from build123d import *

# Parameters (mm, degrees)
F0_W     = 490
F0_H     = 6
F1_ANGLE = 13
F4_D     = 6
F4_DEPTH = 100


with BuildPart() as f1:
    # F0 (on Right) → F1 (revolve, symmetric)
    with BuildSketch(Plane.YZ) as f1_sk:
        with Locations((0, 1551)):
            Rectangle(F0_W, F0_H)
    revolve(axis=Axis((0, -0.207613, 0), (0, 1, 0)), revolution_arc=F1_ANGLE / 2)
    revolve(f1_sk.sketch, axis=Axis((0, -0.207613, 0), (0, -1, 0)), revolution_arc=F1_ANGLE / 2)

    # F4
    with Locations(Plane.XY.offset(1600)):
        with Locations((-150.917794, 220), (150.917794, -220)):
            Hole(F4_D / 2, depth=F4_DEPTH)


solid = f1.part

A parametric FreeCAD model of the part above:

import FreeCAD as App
import Part
import Sketcher
from FreeCAD import Vector
Q = App.Units.Quantity


def add_polygon(sketch, points):
    """Adds a closed chain of lines whose ends are joined by coincident constraints."""
    first, n = sketch.GeometryCount, len(points)
    for a, b in zip(points, points[1:] + points[:1]):
        sketch.addGeometry(Part.LineSegment(App.Vector(*a, 0), App.Vector(*b, 0)), False)
    for i in range(n):
        sketch.addConstraint(Sketcher.Constraint("Coincident", first + i, 2, first + (i + 1) % n, 1))

doc = App.newDocument("Part")
body = doc.addObject("PartDesign::Body", "Body")

sketch1 = body.newObject("Sketcher::SketchObject", "Sketch")
sketch1.AttachmentSupport = (doc.getObject("YZ_Plane"), [""])
sketch1.MapMode = "FlatFace"
add_polygon(sketch1, [(-245, 1554), (-245, 1548), (245, 1548), (245, 1554)])
sketch1.addConstraint(Sketcher.Constraint("Vertical", 0))
sketch1.addConstraint(Sketcher.Constraint("Horizontal", 1))
sketch1.addConstraint(Sketcher.Constraint("Vertical", 2))
sketch1.addConstraint(Sketcher.Constraint("Horizontal", 3))
sketch1.addConstraint(Sketcher.Constraint("DistanceX", 1, 1, 1, 2, Q("490 mm")))
sketch1.addConstraint(Sketcher.Constraint("DistanceY", 0, 2, 0, 1, Q("6 mm")))
sketch1.addConstraint(Sketcher.Constraint("DistanceX", 0, 2, -1, 1, Q("245 mm")))
sketch1.addConstraint(Sketcher.Constraint("DistanceY", -1, 1, 0, 2, Q("1548 mm")))
revolution = body.newObject("PartDesign::Revolution", "Revolution")
revolution.Profile = sketch1
revolution.ReferenceAxis = (sketch1, ["H_Axis"])
revolution.Angle = 6.5

sketch2 = body.newObject("Sketcher::SketchObject", "Sketch001")
sketch2.AttachmentSupport = (doc.getObject("YZ_Plane"), [""])
sketch2.MapMode = "FlatFace"
add_polygon(sketch2, [(-245, 1554), (-245, 1548), (245, 1548), (245, 1554)])
sketch2.addConstraint(Sketcher.Constraint("Vertical", 0))
sketch2.addConstraint(Sketcher.Constraint("Horizontal", 1))
sketch2.addConstraint(Sketcher.Constraint("Vertical", 2))
sketch2.addConstraint(Sketcher.Constraint("Horizontal", 3))
sketch2.addConstraint(Sketcher.Constraint("DistanceX", 1, 1, 1, 2, Q("490 mm")))
sketch2.addConstraint(Sketcher.Constraint("DistanceY", 0, 2, 0, 1, Q("6 mm")))
sketch2.addConstraint(Sketcher.Constraint("DistanceX", 0, 2, -1, 1, Q("245 mm")))
sketch2.addConstraint(Sketcher.Constraint("DistanceY", -1, 1, 0, 2, Q("1548 mm")))
revolution2 = body.newObject("PartDesign::Revolution", "Revolution001")
revolution2.Profile = sketch2
revolution2.ReferenceAxis = (sketch2, ["H_Axis"])
revolution2.Angle = 6.5
revolution2.Reversed = True

sketch3 = body.newObject("Sketcher::SketchObject", "Sketch002")
sketch3.AttachmentSupport = (doc.getObject("XY_Plane"), [""])
sketch3.MapMode = "FlatFace"
sketch3.AttachmentOffset = App.Placement(Vector(0, 0, 1600), App.Rotation())
sketch3.addGeometry(Part.Circle(Vector(-150.9, 220, 0), Vector(0, 0, 1), 3), False)
sketch3.addGeometry(Part.Circle(Vector(150.9, -220, 0), Vector(0, 0, 1), 3), False)
sketch3.addConstraint(Sketcher.Constraint("Equal", 0, 1))
sketch3.addConstraint(Sketcher.Constraint("Symmetric", 0, 3, 1, 3, -1, 1))
sketch3.addConstraint(Sketcher.Constraint("Diameter", 0, Q("6 mm")))
sketch3.addConstraint(Sketcher.Constraint("DistanceY", -1, 1, 0, 3, Q("220 mm")))
sketch3.addConstraint(Sketcher.Constraint("DistanceX", 0, 3, -1, 1, Q("150.917794 mm")))
doc.recompute()
hole = body.newObject("PartDesign::Hole", "Hole")
hole.Profile = sketch3
hole.ThreadType = "None"
hole.Diameter = 6
hole.DepthType = "Dimension"
hole.Depth = 100
hole.DrillPoint = "Flat"

doc.recompute()
